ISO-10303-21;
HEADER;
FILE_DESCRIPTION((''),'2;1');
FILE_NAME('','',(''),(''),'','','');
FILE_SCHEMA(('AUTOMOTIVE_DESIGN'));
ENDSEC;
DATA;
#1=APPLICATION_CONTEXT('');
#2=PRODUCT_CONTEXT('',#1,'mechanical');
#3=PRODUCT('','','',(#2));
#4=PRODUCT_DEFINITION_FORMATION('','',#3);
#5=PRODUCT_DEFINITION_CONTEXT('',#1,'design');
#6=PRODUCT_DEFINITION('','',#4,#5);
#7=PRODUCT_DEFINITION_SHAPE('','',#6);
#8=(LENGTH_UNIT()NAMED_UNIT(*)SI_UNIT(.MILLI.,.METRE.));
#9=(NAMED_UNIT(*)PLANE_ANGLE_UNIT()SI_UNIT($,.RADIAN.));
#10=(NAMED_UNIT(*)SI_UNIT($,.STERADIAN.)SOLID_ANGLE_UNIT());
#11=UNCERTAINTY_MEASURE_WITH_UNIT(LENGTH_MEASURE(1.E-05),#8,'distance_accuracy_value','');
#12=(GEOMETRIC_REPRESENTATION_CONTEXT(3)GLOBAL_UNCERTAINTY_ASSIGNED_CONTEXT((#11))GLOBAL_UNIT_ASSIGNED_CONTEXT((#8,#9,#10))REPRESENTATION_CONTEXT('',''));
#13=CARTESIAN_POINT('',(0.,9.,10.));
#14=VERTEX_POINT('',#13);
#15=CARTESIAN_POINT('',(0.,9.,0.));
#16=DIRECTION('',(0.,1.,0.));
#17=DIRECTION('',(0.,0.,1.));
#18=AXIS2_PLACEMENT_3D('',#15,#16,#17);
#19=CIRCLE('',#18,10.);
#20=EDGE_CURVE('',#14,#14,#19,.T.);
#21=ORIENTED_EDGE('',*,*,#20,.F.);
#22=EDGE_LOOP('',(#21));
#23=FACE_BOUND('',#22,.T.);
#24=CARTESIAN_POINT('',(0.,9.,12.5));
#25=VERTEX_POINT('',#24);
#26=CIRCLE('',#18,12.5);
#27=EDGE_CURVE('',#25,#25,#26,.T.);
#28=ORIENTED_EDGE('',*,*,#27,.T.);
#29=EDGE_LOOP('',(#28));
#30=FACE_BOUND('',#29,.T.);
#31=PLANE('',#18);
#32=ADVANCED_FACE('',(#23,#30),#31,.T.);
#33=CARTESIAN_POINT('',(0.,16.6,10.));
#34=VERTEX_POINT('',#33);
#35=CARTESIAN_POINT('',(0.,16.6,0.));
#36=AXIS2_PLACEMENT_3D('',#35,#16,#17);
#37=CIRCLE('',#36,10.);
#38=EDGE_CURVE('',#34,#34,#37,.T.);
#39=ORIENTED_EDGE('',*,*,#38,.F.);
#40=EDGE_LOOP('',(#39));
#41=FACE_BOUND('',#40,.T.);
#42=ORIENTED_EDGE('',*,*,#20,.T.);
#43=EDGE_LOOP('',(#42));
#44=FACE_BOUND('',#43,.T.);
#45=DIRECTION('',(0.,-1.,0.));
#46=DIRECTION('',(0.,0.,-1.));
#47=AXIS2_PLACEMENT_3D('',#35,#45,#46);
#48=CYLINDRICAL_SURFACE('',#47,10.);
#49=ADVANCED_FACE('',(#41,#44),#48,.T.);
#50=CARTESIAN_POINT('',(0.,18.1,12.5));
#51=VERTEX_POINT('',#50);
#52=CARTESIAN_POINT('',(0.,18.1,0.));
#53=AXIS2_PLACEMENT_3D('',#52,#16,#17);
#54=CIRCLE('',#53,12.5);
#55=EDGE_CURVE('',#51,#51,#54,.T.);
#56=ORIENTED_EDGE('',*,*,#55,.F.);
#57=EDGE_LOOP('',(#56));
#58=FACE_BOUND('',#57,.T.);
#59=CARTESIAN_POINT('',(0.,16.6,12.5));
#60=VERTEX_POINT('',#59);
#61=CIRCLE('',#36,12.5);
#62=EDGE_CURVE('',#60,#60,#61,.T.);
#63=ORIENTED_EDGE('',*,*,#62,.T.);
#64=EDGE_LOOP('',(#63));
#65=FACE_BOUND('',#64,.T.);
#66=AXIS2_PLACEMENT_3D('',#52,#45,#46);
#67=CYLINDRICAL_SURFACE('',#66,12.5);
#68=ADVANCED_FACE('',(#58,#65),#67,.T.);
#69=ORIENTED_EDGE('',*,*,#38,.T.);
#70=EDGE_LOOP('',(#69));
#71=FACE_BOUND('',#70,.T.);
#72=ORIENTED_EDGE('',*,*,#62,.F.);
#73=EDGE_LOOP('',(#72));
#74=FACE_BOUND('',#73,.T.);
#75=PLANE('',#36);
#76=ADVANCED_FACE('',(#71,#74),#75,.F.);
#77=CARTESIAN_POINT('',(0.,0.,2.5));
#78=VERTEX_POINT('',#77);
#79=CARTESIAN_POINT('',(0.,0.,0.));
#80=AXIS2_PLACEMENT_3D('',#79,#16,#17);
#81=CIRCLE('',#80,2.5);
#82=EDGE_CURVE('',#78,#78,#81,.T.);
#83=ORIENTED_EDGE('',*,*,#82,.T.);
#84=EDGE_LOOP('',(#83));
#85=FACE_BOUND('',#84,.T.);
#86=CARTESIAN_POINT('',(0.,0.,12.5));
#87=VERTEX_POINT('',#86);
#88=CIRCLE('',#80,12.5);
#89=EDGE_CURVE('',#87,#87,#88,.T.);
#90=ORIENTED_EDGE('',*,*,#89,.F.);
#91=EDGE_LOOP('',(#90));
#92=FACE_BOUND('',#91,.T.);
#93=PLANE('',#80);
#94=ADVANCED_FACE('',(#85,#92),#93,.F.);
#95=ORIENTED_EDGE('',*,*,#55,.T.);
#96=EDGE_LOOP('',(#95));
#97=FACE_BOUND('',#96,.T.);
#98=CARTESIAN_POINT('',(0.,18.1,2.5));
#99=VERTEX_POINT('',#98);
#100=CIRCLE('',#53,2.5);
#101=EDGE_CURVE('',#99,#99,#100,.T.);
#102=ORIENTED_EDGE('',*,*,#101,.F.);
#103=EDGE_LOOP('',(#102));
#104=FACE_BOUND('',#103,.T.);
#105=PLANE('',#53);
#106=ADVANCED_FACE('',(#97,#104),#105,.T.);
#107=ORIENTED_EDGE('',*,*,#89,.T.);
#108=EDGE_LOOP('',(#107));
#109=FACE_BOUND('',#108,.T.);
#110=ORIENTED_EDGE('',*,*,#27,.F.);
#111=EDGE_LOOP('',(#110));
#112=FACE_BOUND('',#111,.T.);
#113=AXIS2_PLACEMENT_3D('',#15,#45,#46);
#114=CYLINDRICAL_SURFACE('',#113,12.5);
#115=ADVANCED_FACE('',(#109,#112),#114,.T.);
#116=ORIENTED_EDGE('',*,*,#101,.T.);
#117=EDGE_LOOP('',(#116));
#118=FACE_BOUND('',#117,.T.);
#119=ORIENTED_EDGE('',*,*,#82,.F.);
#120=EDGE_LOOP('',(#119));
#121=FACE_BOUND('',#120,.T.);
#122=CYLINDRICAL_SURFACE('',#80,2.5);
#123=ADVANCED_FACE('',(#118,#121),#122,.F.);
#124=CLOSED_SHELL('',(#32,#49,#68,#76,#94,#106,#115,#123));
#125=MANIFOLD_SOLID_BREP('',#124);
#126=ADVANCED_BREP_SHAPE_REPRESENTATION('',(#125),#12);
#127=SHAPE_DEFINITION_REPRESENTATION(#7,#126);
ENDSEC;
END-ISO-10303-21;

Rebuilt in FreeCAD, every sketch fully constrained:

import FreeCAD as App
import Part
import Sketcher

V = App.Vector
Q = App.Units.Quantity

doc = App.newDocument("Part")
body = doc.addObject("PartDesign::Body", "Body")

sketch1 = body.newObject("Sketcher::SketchObject", "Sketch")
sketch1.AttachmentSupport = (doc.getObject("XZ_Plane"), [""])
sketch1.MapMode = "FlatFace"
sketch1.addGeometry(Part.Circle(V(0, 0, 0), V(0, 0, 1), 12.5), False)
sketch1.addConstraint(Sketcher.Constraint("Coincident", 0, 3, -1, 1))
sketch1.addConstraint(Sketcher.Constraint("Diameter", 0, Q("25 mm")))
pad1 = body.newObject("PartDesign::Pad", "Pad")
pad1.Profile = sketch1
pad1.Length = 9
pad1.Reversed = True

sketch2 = body.newObject("Sketcher::SketchObject", "Sketch001")
sketch2.AttachmentSupport = (doc.getObject("XZ_Plane"), [""])
sketch2.MapMode = "FlatFace"
sketch2.AttachmentOffset = App.Placement(V(0, 0, -9), App.Rotation())
sketch2.addGeometry(Part.Circle(V(0, 0, 0), V(0, 0, 1), 10), False)
sketch2.addConstraint(Sketcher.Constraint("Coincident", 0, 3, -1, 1))
sketch2.addConstraint(Sketcher.Constraint("Diameter", 0, Q("20 mm")))
pad2 = body.newObject("PartDesign::Pad", "Pad001")
pad2.Profile = sketch2
pad2.Length = 7.6
pad2.Reversed = True

sketch3 = body.newObject("Sketcher::SketchObject", "Sketch002")
sketch3.AttachmentSupport = (doc.getObject("XZ_Plane"), [""])
sketch3.MapMode = "FlatFace"
sketch3.AttachmentOffset = App.Placement(V(0, 0, -16.6), App.Rotation())
sketch3.addGeometry(Part.Circle(V(0, 0, 0), V(0, 0, 1), 12.5), False)
sketch3.addConstraint(Sketcher.Constraint("Coincident", 0, 3, -1, 1))
sketch3.addConstraint(Sketcher.Constraint("Diameter", 0, Q("25 mm")))
pad3 = body.newObject("PartDesign::Pad", "Pad002")
pad3.Profile = sketch3
pad3.Length = 1.5
pad3.Reversed = True

sketch4 = body.newObject("Sketcher::SketchObject", "Sketch003")
sketch4.AttachmentSupport = (doc.getObject("XZ_Plane"), [""])
sketch4.MapMode = "FlatFace"
sketch4.AttachmentOffset = App.Placement(V(0, 0, -18.1), App.Rotation())
sketch4.addGeometry(Part.Circle(V(0, 0, 0), V(0, 0, 1), 2.5), False)
sketch4.addConstraint(Sketcher.Constraint("Coincident", 0, 3, -1, 1))
sketch4.addConstraint(Sketcher.Constraint("Diameter", 0, Q("5 mm")))
pocket1 = body.newObject("PartDesign::Pocket", "Pocket")
pocket1.Profile = sketch4
pocket1.Type = "ThroughAll"
pocket1.Reversed = True

doc.recompute()
